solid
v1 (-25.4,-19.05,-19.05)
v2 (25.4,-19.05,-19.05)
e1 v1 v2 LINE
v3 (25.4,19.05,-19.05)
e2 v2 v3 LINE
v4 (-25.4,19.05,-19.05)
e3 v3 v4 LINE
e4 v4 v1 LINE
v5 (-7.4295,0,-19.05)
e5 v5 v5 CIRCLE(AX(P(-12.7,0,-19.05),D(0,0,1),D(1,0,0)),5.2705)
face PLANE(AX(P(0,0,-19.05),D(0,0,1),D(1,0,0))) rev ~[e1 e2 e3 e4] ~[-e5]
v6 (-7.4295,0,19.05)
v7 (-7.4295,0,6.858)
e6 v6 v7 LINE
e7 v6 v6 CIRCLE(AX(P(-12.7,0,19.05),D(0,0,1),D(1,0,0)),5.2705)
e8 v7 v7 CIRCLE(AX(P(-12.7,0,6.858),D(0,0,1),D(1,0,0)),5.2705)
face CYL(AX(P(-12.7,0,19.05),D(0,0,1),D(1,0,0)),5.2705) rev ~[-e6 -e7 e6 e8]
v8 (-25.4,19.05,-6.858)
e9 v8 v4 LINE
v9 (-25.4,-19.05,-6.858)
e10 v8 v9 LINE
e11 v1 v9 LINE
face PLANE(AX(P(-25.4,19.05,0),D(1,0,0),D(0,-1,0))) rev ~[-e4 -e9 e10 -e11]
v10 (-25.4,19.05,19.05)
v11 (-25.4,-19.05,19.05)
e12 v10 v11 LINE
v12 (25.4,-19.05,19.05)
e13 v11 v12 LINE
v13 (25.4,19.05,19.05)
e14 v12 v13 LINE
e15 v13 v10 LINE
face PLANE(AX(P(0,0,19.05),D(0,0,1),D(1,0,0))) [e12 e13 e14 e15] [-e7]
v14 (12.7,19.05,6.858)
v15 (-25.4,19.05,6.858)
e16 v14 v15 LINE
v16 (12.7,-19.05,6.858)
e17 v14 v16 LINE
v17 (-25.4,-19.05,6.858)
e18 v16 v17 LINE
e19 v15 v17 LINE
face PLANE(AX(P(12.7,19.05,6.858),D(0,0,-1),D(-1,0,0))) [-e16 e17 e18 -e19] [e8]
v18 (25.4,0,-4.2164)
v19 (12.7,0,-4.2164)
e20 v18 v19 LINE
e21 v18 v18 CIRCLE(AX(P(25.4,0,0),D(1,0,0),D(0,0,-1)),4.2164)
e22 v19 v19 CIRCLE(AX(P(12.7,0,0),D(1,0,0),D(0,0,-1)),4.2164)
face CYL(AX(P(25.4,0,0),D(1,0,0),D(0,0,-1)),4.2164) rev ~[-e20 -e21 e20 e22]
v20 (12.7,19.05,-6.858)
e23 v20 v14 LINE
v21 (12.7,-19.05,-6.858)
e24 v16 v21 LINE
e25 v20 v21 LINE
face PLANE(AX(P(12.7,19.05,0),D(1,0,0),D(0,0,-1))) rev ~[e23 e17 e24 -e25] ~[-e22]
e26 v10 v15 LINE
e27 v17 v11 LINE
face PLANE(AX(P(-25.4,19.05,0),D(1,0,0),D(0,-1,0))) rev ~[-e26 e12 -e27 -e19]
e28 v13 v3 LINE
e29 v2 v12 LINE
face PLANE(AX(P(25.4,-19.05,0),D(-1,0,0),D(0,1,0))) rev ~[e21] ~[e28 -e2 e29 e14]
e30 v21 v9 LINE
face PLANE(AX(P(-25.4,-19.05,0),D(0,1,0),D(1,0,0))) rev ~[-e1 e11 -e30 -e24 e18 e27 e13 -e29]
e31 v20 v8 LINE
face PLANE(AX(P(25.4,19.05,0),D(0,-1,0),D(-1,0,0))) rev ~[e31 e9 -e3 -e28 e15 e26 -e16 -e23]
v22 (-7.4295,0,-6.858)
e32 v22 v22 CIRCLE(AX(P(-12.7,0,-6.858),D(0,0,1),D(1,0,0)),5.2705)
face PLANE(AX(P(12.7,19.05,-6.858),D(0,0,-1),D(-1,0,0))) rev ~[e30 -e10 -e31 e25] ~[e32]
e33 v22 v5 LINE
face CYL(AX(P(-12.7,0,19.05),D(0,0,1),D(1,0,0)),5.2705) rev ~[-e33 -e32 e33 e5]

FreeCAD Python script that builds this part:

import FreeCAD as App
import Part
import Sketcher
from FreeCAD import Vector
Q = App.Units.Quantity

doc = App.newDocument("Part")
body = doc.addObject("PartDesign::Body", "Body")

# Sketch on XY plane
sketch1 = body.newObject("Sketcher::SketchObject", "Sketch")
sketch1.AttachmentSupport = (doc.getObject("XY_Plane"), [""])
sketch1.MapMode = "FlatFace"
sketch1.addGeometry(Part.LineSegment(Vector(-25, 19, 0), Vector(-25, -19, 0)), False)
sketch1.addGeometry(Part.LineSegment(Vector(-25, -19, 0), Vector(25, -19, 0)), False)
sketch1.addGeometry(Part.LineSegment(Vector(25, -19, 0), Vector(25, 19, 0)), False)
sketch1.addGeometry(Part.LineSegment(Vector(25, 19, 0), Vector(-25, 19, 0)), False)
sketch1.addConstraint(Sketcher.Constraint("Coincident", 0, 2, 1, 1))
sketch1.addConstraint(Sketcher.Constraint("Coincident", 1, 2, 2, 1))
sketch1.addConstraint(Sketcher.Constraint("Coincident", 2, 2, 3, 1))
sketch1.addConstraint(Sketcher.Constraint("Coincident", 3, 2, 0, 1))
sketch1.addConstraint(Sketcher.Constraint("Vertical", 0))
sketch1.addConstraint(Sketcher.Constraint("Horizontal", 1))
sketch1.addConstraint(Sketcher.Constraint("Vertical", 2))
sketch1.addConstraint(Sketcher.Constraint("Horizontal", 3))
sketch1.addConstraint(Sketcher.Constraint("Symmetric", 0, 2, 2, 2, -1, 1))
sketch1.addConstraint(Sketcher.Constraint("DistanceX", 1, 1, 1, 2, Q("2 in")))
sketch1.addConstraint(Sketcher.Constraint("DistanceY", 0, 2, 0, 1, Q("1.5 in")))
pad1 = body.newObject("PartDesign::Pad", "Pad")
pad1.Profile = sketch1
pad1.Length = Q("1.5 in")
pad1.Midplane = True

# Sketch on XZ plane
sketch2 = body.newObject("Sketcher::SketchObject", "Sketch001")
sketch2.AttachmentSupport = (doc.getObject("XZ_Plane"), [""])
sketch2.MapMode = "FlatFace"
sketch2.AttachmentOffset = App.Placement(Vector(0, 0, -0.75 * 25.4), App.Rotation())
sketch2.addGeometry(Part.LineSegment(Vector(13, 7, 0), Vector(13, -7, 0)), False)
sketch2.addGeometry(Part.LineSegment(Vector(13, -7, 0), Vector(-25, -7, 0)), False)
sketch2.addGeometry(Part.LineSegment(Vector(-25, -7, 0), Vector(-25, 7, 0)), False)
sketch2.addGeometry(Part.LineSegment(Vector(-25, 7, 0), Vector(13, 7, 0)), False)
sketch2.addConstraint(Sketcher.Constraint("Coincident", 0, 2, 1, 1))
sketch2.addConstraint(Sketcher.Constraint("Coincident", 1, 2, 2, 1))
sketch2.addConstraint(Sketcher.Constraint("Coincident", 2, 2, 3, 1))
sketch2.addConstraint(Sketcher.Constraint("Coincident", 3, 2, 0, 1))
sketch2.addConstraint(Sketcher.Constraint("Vertical", 0))
sketch2.addConstraint(Sketcher.Constraint("Horizontal", 1))
sketch2.addConstraint(Sketcher.Constraint("Vertical", 2))
sketch2.addConstraint(Sketcher.Constraint("Horizontal", 3))
sketch2.addConstraint(Sketcher.Constraint("DistanceX", 1, 2, 1, 1, Q("1.5 in")))
sketch2.addConstraint(Sketcher.Constraint("DistanceY", 0, 2, 0, 1, Q("0.54 in")))
sketch2.addConstraint(Sketcher.Constraint("DistanceX", 1, 2, -1, 1, Q("1 in")))
sketch2.addConstraint(Sketcher.Constraint("DistanceY", 0, 2, -1, 1, Q("0.27 in")))
pocket1 = body.newObject("PartDesign::Pocket", "Pocket")
pocket1.Profile = sketch2
pocket1.Type = "ThroughAll"
pocket1.Reversed = True

# Sketch on XY plane
sketch3 = body.newObject("Sketcher::SketchObject", "Sketch002")
sketch3.AttachmentSupport = (doc.getObject("XY_Plane"), [""])
sketch3.MapMode = "FlatFace"
sketch3.AttachmentOffset = App.Placement(Vector(0, 0, 0.75 * 25.4), App.Rotation())
sketch3.addGeometry(Part.Circle(Vector(-13, 0, 0), Vector(0, 0, 1), 5), False)
sketch3.addConstraint(Sketcher.Constraint("PointOnObject", 0, 3, -1))
sketch3.addConstraint(Sketcher.Constraint("Diameter", 0, Q("0.415 in")))
sketch3.addConstraint(Sketcher.Constraint("DistanceX", 0, 3, -1, 1, Q("0.5 in")))
pocket2 = body.newObject("PartDesign::Pocket", "Pocket001")
pocket2.Profile = sketch3
pocket2.Type = "ThroughAll"

# Sketch on YZ plane
sketch4 = body.newObject("Sketcher::SketchObject", "Sketch003")
sketch4.AttachmentSupport = (doc.getObject("YZ_Plane"), [""])
sketch4.MapMode = "FlatFace"
sketch4.AttachmentOffset = App.Placement(Vector(0, 0, 1 * 25.4), App.Rotation())
sketch4.addGeometry(Part.Circle(Vector(0, 0, 0), Vector(0, 0, 1), 4.2), False)
sketch4.addConstraint(Sketcher.Constraint("Coincident", 0, 3, -1, 1))
sketch4.addConstraint(Sketcher.Constraint("Diameter", 0, Q("0.332 in")))
pocket3 = body.newObject("PartDesign::Pocket", "Pocket002")
pocket3.Profile = sketch4
pocket3.Length = Q("0.5 in")

doc.recompute()
